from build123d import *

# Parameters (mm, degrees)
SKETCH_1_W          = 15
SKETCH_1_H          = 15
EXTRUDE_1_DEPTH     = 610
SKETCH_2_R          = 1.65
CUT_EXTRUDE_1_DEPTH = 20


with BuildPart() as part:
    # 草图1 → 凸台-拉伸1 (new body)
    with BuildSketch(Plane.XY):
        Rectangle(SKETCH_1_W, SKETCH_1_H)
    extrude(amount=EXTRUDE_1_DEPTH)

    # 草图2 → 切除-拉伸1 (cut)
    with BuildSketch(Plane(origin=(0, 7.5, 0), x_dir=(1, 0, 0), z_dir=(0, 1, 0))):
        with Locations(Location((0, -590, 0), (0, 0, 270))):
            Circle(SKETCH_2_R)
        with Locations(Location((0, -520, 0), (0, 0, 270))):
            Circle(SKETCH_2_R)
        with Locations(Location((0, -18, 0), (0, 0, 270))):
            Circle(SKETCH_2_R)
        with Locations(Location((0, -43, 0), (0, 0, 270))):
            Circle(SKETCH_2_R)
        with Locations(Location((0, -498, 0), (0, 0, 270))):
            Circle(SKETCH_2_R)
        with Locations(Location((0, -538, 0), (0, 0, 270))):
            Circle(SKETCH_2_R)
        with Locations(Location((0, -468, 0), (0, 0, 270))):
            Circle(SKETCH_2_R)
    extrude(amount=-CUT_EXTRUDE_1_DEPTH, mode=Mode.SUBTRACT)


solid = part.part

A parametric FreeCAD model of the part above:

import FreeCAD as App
import Part
import Sketcher


def add_polygon(sketch, points):
    """Adds a closed chain of lines whose ends are joined by coincident constraints."""
    first, n = sketch.GeometryCount, len(points)
    for a, b in zip(points, points[1:] + points[:1]):
        sketch.addGeometry(Part.LineSegment(App.Vector(*a, 0), App.Vector(*b, 0)), False)
    for i in range(n):
        sketch.addConstraint(Sketcher.Constraint("Coincident", first + i, 2, first + (i + 1) % n, 1))

doc = App.newDocument("Part")
params = doc.addObject("Spreadsheet::Sheet", "Params")
for row, (alias, value) in enumerate([
    ("sketch1_width", "15 mm"),
    ("pad1_length", "610 mm"),
    ("sketch2_diameter", "3.3 mm"),
    ("pocket1_length", "20 mm"),
], start=1):
    params.set(f"A{row}", alias)
    params.set(f"B{row}", "=" + value)
    params.setAlias(f"B{row}", alias)

body = doc.addObject("PartDesign::Body", "Body")

sketch1 = body.newObject("Sketcher::SketchObject", "Sketch")
sketch1.AttachmentSupport = (doc.getObject("XY_Plane"), [""])
sketch1.MapMode = "FlatFace"
add_polygon(sketch1, [(-8, 8), (-8, -8), (8, -8), (8, 8)])
sketch1.addConstraint([
    Sketcher.Constraint("Vertical", 0),
    Sketcher.Constraint("Horizontal", 1),
    Sketcher.Constraint("Vertical", 2),
    Sketcher.Constraint("Horizontal", 3),
    Sketcher.Constraint("Symmetric", 0, 2, 2, 2, -1, 1),
    Sketcher.Constraint("Equal", 3, 0),
    Sketcher.Constraint("DistanceX", 1, 1, 1, 2, 15.0),
])
sketch1.setExpression("Constraints[10]", "Params.sketch1_width")
pad1 = body.newObject("PartDesign::Pad", "Pad")
pad1.Profile = sketch1
pad1.setExpression("Length", "Params.pad1_length")

sketch2 = body.newObject("Sketcher::SketchObject", "Sketch001")
sketch2.AttachmentSupport = (doc.getObject("XZ_Plane"), [""])
sketch2.MapMode = "FlatFace"
sketch2.AttachmentOffset = App.Placement(App.Vector(0, 0, -7.5), App.Rotation())
sketch2.addGeometry([
    Part.Circle(App.Vector(0, 590, 0), App.Vector(0, 0, 1), 1.6),
    Part.Circle(App.Vector(0, 520, 0), App.Vector(0, 0, 1), 1.6),
    Part.Circle(App.Vector(0, 18, 0), App.Vector(0, 0, 1), 1.6),
    Part.Circle(App.Vector(0, 43, 0), App.Vector(0, 0, 1), 1.6),
    Part.Circle(App.Vector(0, 498, 0), App.Vector(0, 0, 1), 1.6),
    Part.Circle(App.Vector(0, 538, 0), App.Vector(0, 0, 1), 1.6),
    Part.Circle(App.Vector(0, 468, 0), App.Vector(0, 0, 1), 1.6),
], False)
sketch2.addConstraint([
    Sketcher.Constraint("Equal", 0, 1),
    Sketcher.Constraint("Equal", 1, 2),
    Sketcher.Constraint("Equal", 2, 3),
    Sketcher.Constraint("Equal", 3, 4),
    Sketcher.Constraint("Equal", 4, 5),
    Sketcher.Constraint("Equal", 5, 6),
    Sketcher.Constraint("PointOnObject", 0, 3, -2),
    Sketcher.Constraint("PointOnObject", 1, 3, -2),
    Sketcher.Constraint("PointOnObject", 2, 3, -2),
    Sketcher.Constraint("PointOnObject", 3, 3, -2),
    Sketcher.Constraint("PointOnObject", 4, 3, -2),
    Sketcher.Constraint("PointOnObject", 5, 3, -2),
    Sketcher.Constraint("PointOnObject", 6, 3, -2),
    Sketcher.Constraint("Diameter", 0, 3.3),
    Sketcher.Constraint("DistanceY", -1, 1, 0, 3, 590.0),
    Sketcher.Constraint("DistanceY", -1, 1, 1, 3, 520.0),
    Sketcher.Constraint("DistanceY", -1, 1, 2, 3, 18.0),
    Sketcher.Constraint("DistanceY", -1, 1, 3, 3, 43.0),
    Sketcher.Constraint("DistanceY", -1, 1, 4, 3, 498.0),
    Sketcher.Constraint("DistanceY", -1, 1, 5, 3, 538.0),
    Sketcher.Constraint("DistanceY", -1, 1, 6, 3, 468.0),
])
sketch2.setExpression("Constraints[13]", "Params.sketch2_diameter")
pocket1 = body.newObject("PartDesign::Pocket", "Pocket")
pocket1.Profile = sketch2
pocket1.setExpression("Length", "Params.pocket1_length")
pocket1.Reversed = True

doc.recompute()
